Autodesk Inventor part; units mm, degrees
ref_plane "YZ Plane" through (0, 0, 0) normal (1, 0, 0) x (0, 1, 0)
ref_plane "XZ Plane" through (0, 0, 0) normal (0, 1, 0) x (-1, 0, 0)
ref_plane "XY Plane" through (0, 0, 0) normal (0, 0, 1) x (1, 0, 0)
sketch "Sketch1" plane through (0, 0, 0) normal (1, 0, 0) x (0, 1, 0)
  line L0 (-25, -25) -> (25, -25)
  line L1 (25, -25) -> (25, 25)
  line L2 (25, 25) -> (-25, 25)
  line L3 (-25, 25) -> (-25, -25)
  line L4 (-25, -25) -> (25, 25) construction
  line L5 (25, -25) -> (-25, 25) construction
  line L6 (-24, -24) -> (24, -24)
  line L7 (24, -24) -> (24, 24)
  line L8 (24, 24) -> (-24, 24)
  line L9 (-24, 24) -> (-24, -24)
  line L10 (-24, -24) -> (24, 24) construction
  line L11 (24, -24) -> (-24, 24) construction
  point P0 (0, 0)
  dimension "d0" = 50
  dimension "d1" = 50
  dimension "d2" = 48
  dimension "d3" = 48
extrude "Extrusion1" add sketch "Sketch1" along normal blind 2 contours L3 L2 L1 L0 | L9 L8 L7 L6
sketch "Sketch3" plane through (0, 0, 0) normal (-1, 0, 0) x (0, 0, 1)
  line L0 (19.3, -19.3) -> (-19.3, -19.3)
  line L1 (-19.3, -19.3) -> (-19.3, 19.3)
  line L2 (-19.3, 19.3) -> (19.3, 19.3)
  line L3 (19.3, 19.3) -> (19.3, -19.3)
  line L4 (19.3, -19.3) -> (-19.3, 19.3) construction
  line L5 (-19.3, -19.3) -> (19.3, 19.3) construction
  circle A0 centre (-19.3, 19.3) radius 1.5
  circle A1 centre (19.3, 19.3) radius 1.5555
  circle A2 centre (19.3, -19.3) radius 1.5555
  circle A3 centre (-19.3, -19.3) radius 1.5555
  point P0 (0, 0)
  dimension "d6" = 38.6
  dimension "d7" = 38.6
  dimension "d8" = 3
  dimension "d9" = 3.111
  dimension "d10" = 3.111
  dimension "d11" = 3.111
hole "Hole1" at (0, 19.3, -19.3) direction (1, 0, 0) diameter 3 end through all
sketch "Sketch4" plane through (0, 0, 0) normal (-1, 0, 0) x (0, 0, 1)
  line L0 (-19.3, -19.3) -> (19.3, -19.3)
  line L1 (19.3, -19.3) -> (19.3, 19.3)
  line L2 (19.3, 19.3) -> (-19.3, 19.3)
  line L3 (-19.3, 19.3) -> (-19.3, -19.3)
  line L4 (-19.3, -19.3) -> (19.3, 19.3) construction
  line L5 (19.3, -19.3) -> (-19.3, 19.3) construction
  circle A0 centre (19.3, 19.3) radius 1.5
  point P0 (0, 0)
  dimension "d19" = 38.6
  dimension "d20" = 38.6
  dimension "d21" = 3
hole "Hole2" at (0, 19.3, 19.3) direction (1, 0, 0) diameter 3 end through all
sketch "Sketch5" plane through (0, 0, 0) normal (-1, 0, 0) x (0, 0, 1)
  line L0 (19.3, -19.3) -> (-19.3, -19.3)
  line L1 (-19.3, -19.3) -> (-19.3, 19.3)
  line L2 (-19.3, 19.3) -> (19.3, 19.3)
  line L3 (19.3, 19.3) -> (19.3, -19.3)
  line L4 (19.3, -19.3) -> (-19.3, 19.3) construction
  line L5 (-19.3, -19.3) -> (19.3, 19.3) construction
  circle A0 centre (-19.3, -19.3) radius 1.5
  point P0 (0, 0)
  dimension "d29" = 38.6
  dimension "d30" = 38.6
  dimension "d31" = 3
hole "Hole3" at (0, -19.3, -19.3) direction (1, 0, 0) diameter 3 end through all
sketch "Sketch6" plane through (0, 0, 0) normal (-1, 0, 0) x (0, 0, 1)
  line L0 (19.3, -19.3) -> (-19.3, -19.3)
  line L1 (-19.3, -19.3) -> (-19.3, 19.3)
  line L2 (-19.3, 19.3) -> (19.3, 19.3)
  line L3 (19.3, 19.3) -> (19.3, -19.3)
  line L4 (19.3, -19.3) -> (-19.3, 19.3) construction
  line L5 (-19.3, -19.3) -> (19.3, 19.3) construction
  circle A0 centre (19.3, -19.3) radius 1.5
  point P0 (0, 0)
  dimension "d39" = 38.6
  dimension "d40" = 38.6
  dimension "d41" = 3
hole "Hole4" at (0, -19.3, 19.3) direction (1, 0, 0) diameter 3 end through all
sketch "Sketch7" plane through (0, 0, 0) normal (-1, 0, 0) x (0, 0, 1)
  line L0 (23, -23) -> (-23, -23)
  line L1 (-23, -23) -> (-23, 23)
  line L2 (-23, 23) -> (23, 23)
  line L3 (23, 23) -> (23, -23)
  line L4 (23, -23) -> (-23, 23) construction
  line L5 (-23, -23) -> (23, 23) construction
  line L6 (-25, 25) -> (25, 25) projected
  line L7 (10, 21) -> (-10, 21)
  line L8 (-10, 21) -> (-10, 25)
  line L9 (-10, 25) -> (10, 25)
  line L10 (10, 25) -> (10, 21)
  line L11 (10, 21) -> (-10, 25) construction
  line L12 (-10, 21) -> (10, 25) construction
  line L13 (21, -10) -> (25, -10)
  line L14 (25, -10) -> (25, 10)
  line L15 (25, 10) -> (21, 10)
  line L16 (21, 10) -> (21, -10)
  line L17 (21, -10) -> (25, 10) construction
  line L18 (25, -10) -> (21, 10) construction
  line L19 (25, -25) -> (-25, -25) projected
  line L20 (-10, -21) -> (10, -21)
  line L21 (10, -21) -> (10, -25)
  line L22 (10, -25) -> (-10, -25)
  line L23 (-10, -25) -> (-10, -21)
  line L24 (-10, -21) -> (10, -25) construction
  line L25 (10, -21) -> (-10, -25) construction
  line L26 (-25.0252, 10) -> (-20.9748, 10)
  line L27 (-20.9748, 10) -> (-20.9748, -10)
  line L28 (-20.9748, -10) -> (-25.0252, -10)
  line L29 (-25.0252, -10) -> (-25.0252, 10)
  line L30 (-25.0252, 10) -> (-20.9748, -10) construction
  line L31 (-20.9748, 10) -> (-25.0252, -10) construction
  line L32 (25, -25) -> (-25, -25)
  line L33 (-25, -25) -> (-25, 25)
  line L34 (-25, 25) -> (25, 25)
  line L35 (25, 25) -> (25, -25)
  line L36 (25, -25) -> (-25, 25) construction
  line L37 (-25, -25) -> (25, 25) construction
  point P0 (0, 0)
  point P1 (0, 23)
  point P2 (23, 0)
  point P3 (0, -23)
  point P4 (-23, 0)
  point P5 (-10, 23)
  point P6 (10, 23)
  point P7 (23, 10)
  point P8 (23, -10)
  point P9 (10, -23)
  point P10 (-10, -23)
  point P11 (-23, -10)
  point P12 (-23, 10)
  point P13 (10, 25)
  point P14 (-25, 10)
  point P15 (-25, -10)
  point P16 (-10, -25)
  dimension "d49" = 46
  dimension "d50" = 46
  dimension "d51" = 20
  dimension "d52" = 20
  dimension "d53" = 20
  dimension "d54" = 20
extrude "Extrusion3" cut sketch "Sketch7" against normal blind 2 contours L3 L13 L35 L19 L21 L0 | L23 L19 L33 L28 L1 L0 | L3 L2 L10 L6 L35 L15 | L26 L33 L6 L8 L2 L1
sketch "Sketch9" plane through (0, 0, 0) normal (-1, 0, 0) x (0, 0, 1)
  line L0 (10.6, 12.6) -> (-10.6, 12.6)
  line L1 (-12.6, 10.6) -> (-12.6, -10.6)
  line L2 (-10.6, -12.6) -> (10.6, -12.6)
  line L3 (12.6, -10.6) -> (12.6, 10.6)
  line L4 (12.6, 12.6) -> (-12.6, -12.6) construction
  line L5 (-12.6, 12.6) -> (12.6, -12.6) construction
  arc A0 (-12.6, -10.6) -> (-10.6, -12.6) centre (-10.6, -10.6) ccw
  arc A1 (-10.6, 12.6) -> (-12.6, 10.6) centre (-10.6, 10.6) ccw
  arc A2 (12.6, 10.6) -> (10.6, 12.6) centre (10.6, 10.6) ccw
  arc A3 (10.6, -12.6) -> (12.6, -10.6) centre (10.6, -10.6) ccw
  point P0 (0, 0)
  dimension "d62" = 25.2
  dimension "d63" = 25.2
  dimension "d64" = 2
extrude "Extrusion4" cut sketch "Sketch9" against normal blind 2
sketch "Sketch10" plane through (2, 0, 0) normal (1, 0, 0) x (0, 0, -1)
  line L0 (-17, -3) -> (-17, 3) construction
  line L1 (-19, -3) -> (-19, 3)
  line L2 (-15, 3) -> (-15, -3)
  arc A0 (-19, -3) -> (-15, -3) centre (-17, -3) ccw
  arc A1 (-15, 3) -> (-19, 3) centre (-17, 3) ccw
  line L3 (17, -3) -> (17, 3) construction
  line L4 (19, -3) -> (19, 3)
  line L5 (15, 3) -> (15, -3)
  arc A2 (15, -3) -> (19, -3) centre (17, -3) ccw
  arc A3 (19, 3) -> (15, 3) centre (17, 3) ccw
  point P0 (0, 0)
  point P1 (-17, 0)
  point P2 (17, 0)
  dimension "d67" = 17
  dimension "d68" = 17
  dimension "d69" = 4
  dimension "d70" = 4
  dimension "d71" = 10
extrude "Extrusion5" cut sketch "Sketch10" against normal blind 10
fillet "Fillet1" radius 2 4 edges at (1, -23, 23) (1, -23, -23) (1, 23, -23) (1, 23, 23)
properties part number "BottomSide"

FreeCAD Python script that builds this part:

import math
import FreeCAD as App
import Part
import Sketcher
from FreeCAD import Vector


def edges_at(feature, points):
    """Names of the edges that pass closest to the given points."""
    edges = feature.Shape.Edges
    near = lambda p: min(range(len(edges)), key=lambda i: edges[i].distToShape(Part.Vertex(*p))[0])
    return sorted({f"Edge{near(p) + 1}" for p in points})


def add_polygon(sketch, points):
    """Adds a closed chain of lines whose ends are joined by coincident constraints."""
    first, n = sketch.GeometryCount, len(points)
    for a, b in zip(points, points[1:] + points[:1]):
        sketch.addGeometry(Part.LineSegment(App.Vector(*a, 0), App.Vector(*b, 0)), False)
    for i in range(n):
        sketch.addConstraint(Sketcher.Constraint("Coincident", first + i, 2, first + (i + 1) % n, 1))

doc = App.newDocument("Part")
body = doc.addObject("PartDesign::Body", "Body")

# Sketch on YZ plane
sketch1 = doc.addObject("Sketcher::SketchObject", "Sketch")
body.addObject(sketch1)
sketch1.AttachmentSupport = (doc.YZ_Plane, [""])
sketch1.MapMode = "FlatFace"
add_polygon(sketch1, [(-25, 25), (-25, -25), (25, -25), (25, 25)])  # lines 0-3
sketch1.addConstraint(Sketcher.Constraint("Vertical", 0))
sketch1.addConstraint(Sketcher.Constraint("Horizontal", 1))
sketch1.addConstraint(Sketcher.Constraint("Vertical", 2))
sketch1.addConstraint(Sketcher.Constraint("Horizontal", 3))
sketch1.addConstraint(Sketcher.Constraint("Symmetric", 0, 2, 2, 2, -1, 1))
sketch1.addConstraint(Sketcher.Constraint("Equal", 3, 0))
sketch1.addConstraint(Sketcher.Constraint("DistanceX", 1, 1, 1, 2, 50.0))
pad1 = doc.addObject("PartDesign::Pad", "Pad")
body.addObject(pad1)
pad1.Profile = sketch1
pad1.Length = 2

# Sketch on YZ plane
sketch2 = doc.addObject("Sketcher::SketchObject", "Sketch001")
body.addObject(sketch2)
sketch2.AttachmentSupport = (doc.YZ_Plane, [""])
sketch2.MapMode = "FlatFace"
sketch2.addGeometry(Part.Circle(Vector(19.3, -19.3, 0), Vector(0, 0, 1), 1.5), False)
sketch2.addConstraint(Sketcher.Constraint("Diameter", 0, 3.0))
sketch2.addConstraint(Sketcher.Constraint("DistanceX", -1, 1, 0, 3, 19.3))
sketch2.addConstraint(Sketcher.Constraint("DistanceY", 0, 3, -1, 1, 19.3))
doc.recompute()
hole = doc.addObject("PartDesign::Hole", "Hole")
body.addObject(hole)
hole.Profile = sketch2
hole.ThreadType = "None"
hole.Diameter = 3
hole.DepthType = "ThroughAll"
hole.Reversed = True

# Sketch on YZ plane
sketch3 = doc.addObject("Sketcher::SketchObject", "Sketch002")
body.addObject(sketch3)
sketch3.AttachmentSupport = (doc.YZ_Plane, [""])
sketch3.MapMode = "FlatFace"
sketch3.addGeometry(Part.Circle(Vector(19.3, 19.3, 0), Vector(0, 0, 1), 1.5), False)
sketch3.addConstraint(Sketcher.Constraint("Diameter", 0, 3.0))
sketch3.addConstraint(Sketcher.Constraint("DistanceX", -1, 1, 0, 3, 19.3))
sketch3.addConstraint(Sketcher.Constraint("DistanceY", -1, 1, 0, 3, 19.3))
doc.recompute()
hole2 = doc.addObject("PartDesign::Hole", "Hole001")
body.addObject(hole2)
hole2.Profile = sketch3
hole2.ThreadType = "None"
hole2.Diameter = 3
hole2.DepthType = "ThroughAll"
hole2.Reversed = True

# Sketch on YZ plane
sketch4 = doc.addObject("Sketcher::SketchObject", "Sketch003")
body.addObject(sketch4)
sketch4.AttachmentSupport = (doc.YZ_Plane, [""])
sketch4.MapMode = "FlatFace"
sketch4.addGeometry(Part.Circle(Vector(-19.3, -19.3, 0), Vector(0, 0, 1), 1.5), False)
sketch4.addConstraint(Sketcher.Constraint("Diameter", 0, 3.0))
sketch4.addConstraint(Sketcher.Constraint("DistanceX", 0, 3, -1, 1, 19.3))
sketch4.addConstraint(Sketcher.Constraint("DistanceY", 0, 3, -1, 1, 19.3))
doc.recompute()
hole3 = doc.addObject("PartDesign::Hole", "Hole002")
body.addObject(hole3)
hole3.Profile = sketch4
hole3.ThreadType = "None"
hole3.Diameter = 3
hole3.DepthType = "ThroughAll"
hole3.Reversed = True

# Sketch on YZ plane
sketch5 = doc.addObject("Sketcher::SketchObject", "Sketch004")
body.addObject(sketch5)
sketch5.AttachmentSupport = (doc.YZ_Plane, [""])
sketch5.MapMode = "FlatFace"
sketch5.addGeometry(Part.Circle(Vector(-19.3, 19.3, 0), Vector(0, 0, 1), 1.5), False)
sketch5.addConstraint(Sketcher.Constraint("Diameter", 0, 3.0))
sketch5.addConstraint(Sketcher.Constraint("DistanceX", 0, 3, -1, 1, 19.3))
sketch5.addConstraint(Sketcher.Constraint("DistanceY", -1, 1, 0, 3, 19.3))
doc.recompute()
hole4 = doc.addObject("PartDesign::Hole", "Hole003")
body.addObject(hole4)
hole4.Profile = sketch5
hole4.ThreadType = "None"
hole4.Diameter = 3
hole4.DepthType = "ThroughAll"
hole4.Reversed = True

# Sketch on YZ plane
sketch6 = doc.addObject("Sketcher::SketchObject", "Sketch005")
body.addObject(sketch6)
sketch6.AttachmentSupport = (doc.YZ_Plane, [""])
sketch6.MapMode = "FlatFace"
add_polygon(sketch6, [(-10, 23), (-23, 23), (-23, 10), (-25, 10), (-25, 25), (-10, 25)])  # lines 0-5
add_polygon(sketch6, [(-25, -10), (-23, -10), (-23, -23), (-10, -23), (-10, -25), (-25, -25)])  # lines 6-11
add_polygon(sketch6, [(23, 23), (10, 23), (10, 25), (25, 25), (25, 10), (23, 10)])  # lines 12-17
add_polygon(sketch6, [(10, -25), (10, -23), (23, -23), (23, -10), (25, -10), (25, -25)])  # lines 18-23
sketch6.addConstraint(Sketcher.Constraint("Horizontal", 0))
sketch6.addConstraint(Sketcher.Constraint("Vertical", 1))
sketch6.addConstraint(Sketcher.Constraint("Horizontal", 2))
sketch6.addConstraint(Sketcher.Constraint("Vertical", 3))
sketch6.addConstraint(Sketcher.Constraint("Horizontal", 4))
sketch6.addConstraint(Sketcher.Constraint("Vertical", 5))
sketch6.addConstraint(Sketcher.Constraint("Horizontal", 6))
sketch6.addConstraint(Sketcher.Constraint("Vertical", 7))
sketch6.addConstraint(Sketcher.Constraint("Horizontal", 8))
sketch6.addConstraint(Sketcher.Constraint("Vertical", 9))
sketch6.addConstraint(Sketcher.Constraint("Horizontal", 10))
sketch6.addConstraint(Sketcher.Constraint("Vertical", 11))
sketch6.addConstraint(Sketcher.Constraint("Horizontal", 12))
sketch6.addConstraint(Sketcher.Constraint("Vertical", 13))
sketch6.addConstraint(Sketcher.Constraint("Horizontal", 14))
sketch6.addConstraint(Sketcher.Constraint("Vertical", 15))
sketch6.addConstraint(Sketcher.Constraint("Horizontal", 16))
sketch6.addConstraint(Sketcher.Constraint("Vertical", 17))
sketch6.addConstraint(Sketcher.Constraint("Vertical", 18))
sketch6.addConstraint(Sketcher.Constraint("Horizontal", 19))
sketch6.addConstraint(Sketcher.Constraint("Vertical", 20))
sketch6.addConstraint(Sketcher.Constraint("Horizontal", 21))
sketch6.addConstraint(Sketcher.Constraint("Vertical", 22))
sketch6.addConstraint(Sketcher.Constraint("Horizontal", 23))
sketch6.addConstraint(Sketcher.Constraint("Symmetric", 8, 2, 12, 2, -1, 1))
sketch6.addConstraint(Sketcher.Constraint("Symmetric", 10, 2, 14, 2, -1, 1))
sketch6.addConstraint(Sketcher.Constraint("Symmetric", 6, 2, 16, 2, -1, 1))
sketch6.addConstraint(Sketcher.Constraint("Symmetric", 5, 2, 18, 2, -1, 1))
sketch6.addConstraint(Sketcher.Constraint("Symmetric", 1, 2, 20, 2, -1, 1))
sketch6.addConstraint(Sketcher.Constraint("Symmetric", 3, 2, 22, 2, -1, 1))
sketch6.addConstraint(Sketcher.Constraint("Symmetric", 5, 2, 12, 2, -2))
sketch6.addConstraint(Sketcher.Constraint("Symmetric", 3, 2, 14, 2, -2))
sketch6.addConstraint(Sketcher.Constraint("Symmetric", 1, 2, 16, 2, -2))
sketch6.addConstraint(Sketcher.Constraint("Equal", 19, 1))
sketch6.addConstraint(Sketcher.Constraint("Equal", 23, 3))
sketch6.addConstraint(Sketcher.Constraint("DistanceY", 6, 2, 1, 2, 20.0))
sketch6.addConstraint(Sketcher.Constraint("DistanceY", 7, 2, 0, 2, 46.0))
sketch6.addConstraint(Sketcher.Constraint("DistanceX", 5, 2, 12, 2, 20.0))
sketch6.addConstraint(Sketcher.Constraint("DistanceX", 2, 2, 2, 1, 2.0))
pocket1 = doc.addObject("PartDesign::Pocket", "Pocket")
body.addObject(pocket1)
pocket1.Profile = sketch6
pocket1.Length = 2
pocket1.Reversed = True

# Sketch on YZ plane
sketch7 = doc.addObject("Sketcher::SketchObject", "Sketch006")
body.addObject(sketch7)
sketch7.AttachmentSupport = (doc.YZ_Plane, [""])
sketch7.MapMode = "FlatFace"
sketch7.addGeometry(Part.ArcOfCircle(Part.Circle(Vector(10.6, 10.6, 0), Vector(0, 0, 1), 2), math.radians(0), math.radians(90)), False)
sketch7.addGeometry(Part.LineSegment(Vector(12.6, 10.6, 0), Vector(12.6, -10.6, 0)), False)
sketch7.addGeometry(Part.ArcOfCircle(Part.Circle(Vector(10.6, -10.6, 0), Vector(0, 0, 1), 2), math.radians(-90), math.radians(0)), False)
sketch7.addGeometry(Part.LineSegment(Vector(10.6, -12.6, 0), Vector(-10.6, -12.6, 0)), False)
sketch7.addGeometry(Part.ArcOfCircle(Part.Circle(Vector(-10.6, -10.6, 0), Vector(0, 0, 1), 2), math.radians(180), math.radians(270)), False)
sketch7.addGeometry(Part.LineSegment(Vector(-12.6, -10.6, 0), Vector(-12.6, 10.6, 0)), False)
sketch7.addGeometry(Part.ArcOfCircle(Part.Circle(Vector(-10.6, 10.6, 0), Vector(0, 0, 1), 2), math.radians(90), math.radians(180)), False)
sketch7.addGeometry(Part.LineSegment(Vector(-10.6, 12.6, 0), Vector(10.6, 12.6, 0)), False)
sketch7.addConstraint(Sketcher.Constraint("Tangent", 0, 1, 1, 1))
sketch7.addConstraint(Sketcher.Constraint("Tangent", 1, 2, 2, 2))
sketch7.addConstraint(Sketcher.Constraint("Tangent", 2, 1, 3, 1))
sketch7.addConstraint(Sketcher.Constraint("Tangent", 3, 2, 4, 2))
sketch7.addConstraint(Sketcher.Constraint("Tangent", 4, 1, 5, 1))
sketch7.addConstraint(Sketcher.Constraint("Tangent", 5, 2, 6, 2))
sketch7.addConstraint(Sketcher.Constraint("Tangent", 6, 1, 7, 1))
sketch7.addConstraint(Sketcher.Constraint("Tangent", 7, 2, 0, 2))
sketch7.addConstraint(Sketcher.Constraint("Vertical", 1))
sketch7.addConstraint(Sketcher.Constraint("Horizontal", 3))
sketch7.addConstraint(Sketcher.Constraint("Vertical", 5))
sketch7.addConstraint(Sketcher.Constraint("Horizontal", 7))
sketch7.addConstraint(Sketcher.Constraint("Equal", 0, 2))
sketch7.addConstraint(Sketcher.Constraint("Equal", 2, 4))
sketch7.addConstraint(Sketcher.Constraint("Equal", 4, 6))
sketch7.addConstraint(Sketcher.Constraint("Symmetric", 0, 3, 4, 3, -1, 1))
sketch7.addConstraint(Sketcher.Constraint("Equal", 7, 1))
sketch7.addConstraint(Sketcher.Constraint("Radius", 0, 2.0))
sketch7.addConstraint(Sketcher.Constraint("DistanceX", 3, 2, 3, 1, 21.2))
pocket2 = doc.addObject("PartDesign::Pocket", "Pocket001")
body.addObject(pocket2)
pocket2.Profile = sketch7
pocket2.Length = 2
pocket2.Reversed = True

# Sketch on YZ plane
sketch8 = doc.addObject("Sketcher::SketchObject", "Sketch007")
body.addObject(sketch8)
sketch8.AttachmentSupport = (doc.YZ_Plane, [""])
sketch8.MapMode = "FlatFace"
sketch8.AttachmentOffset = App.Placement(Vector(0, 0, 2), App.Rotation())
sketch8.addGeometry(Part.LineSegment(Vector(3, 19, 0), Vector(-3, 19, 0)), False)
sketch8.addGeometry(Part.ArcOfCircle(Part.Circle(Vector(-3, 17, 0), Vector(0, 0, 1), 2), math.radians(90), math.radians(270)), False)
sketch8.addGeometry(Part.LineSegment(Vector(-3, 15, 0), Vector(3, 15, 0)), False)
sketch8.addGeometry(Part.ArcOfCircle(Part.Circle(Vector(3, 17, 0), Vector(0, 0, 1), 2), math.radians(-90), math.radians(90)), False)
sketch8.addGeometry(Part.ArcOfCircle(Part.Circle(Vector(-3, -17, 0), Vector(0, 0, 1), 2), math.radians(90), math.radians(270)), False)
sketch8.addGeometry(Part.LineSegment(Vector(-3, -19, 0), Vector(3, -19, 0)), False)
sketch8.addGeometry(Part.ArcOfCircle(Part.Circle(Vector(3, -17, 0), Vector(0, 0, 1), 2), math.radians(-90), math.radians(90)), False)
sketch8.addGeometry(Part.LineSegment(Vector(3, -15, 0), Vector(-3, -15, 0)), False)
sketch8.addConstraint(Sketcher.Constraint("Tangent", 0, 2, 1, 1))
sketch8.addConstraint(Sketcher.Constraint("Tangent", 1, 2, 2, 1))
sketch8.addConstraint(Sketcher.Constraint("Tangent", 2, 2, 3, 1))
sketch8.addConstraint(Sketcher.Constraint("Tangent", 3, 2, 0, 1))
sketch8.addConstraint(Sketcher.Constraint("Tangent", 4, 2, 5, 1))
sketch8.addConstraint(Sketcher.Constraint("Tangent", 5, 2, 6, 1))
sketch8.addConstraint(Sketcher.Constraint("Tangent", 6, 2, 7, 1))
sketch8.addConstraint(Sketcher.Constraint("Tangent", 7, 2, 4, 1))
sketch8.addConstraint(Sketcher.Constraint("Horizontal", 0))
sketch8.addConstraint(Sketcher.Constraint("Horizontal", 2))
sketch8.addConstraint(Sketcher.Constraint("Horizontal", 5))
sketch8.addConstraint(Sketcher.Constraint("Horizontal", 7))
sketch8.addConstraint(Sketcher.Constraint("Equal", 3, 4))
sketch8.addConstraint(Sketcher.Constraint("Symmetric", 3, 3, 4, 3, -1, 1))
sketch8.addConstraint(Sketcher.Constraint("Vertical", 1, 3, 4, 3))
sketch8.addConstraint(Sketcher.Constraint("Vertical", 3, 3, 6, 3))
sketch8.addConstraint(Sketcher.Constraint("Radius", 1, 2.0))
sketch8.addConstraint(Sketcher.Constraint("DistanceY", -1, 1, 1, 3, 17.0))
sketch8.addConstraint(Sketcher.Constraint("DistanceX", 0, 2, 0, 1, 6.0))
pocket3 = doc.addObject("PartDesign::Pocket", "Pocket002")
body.addObject(pocket3)
pocket3.Profile = sketch8
pocket3.Length = 10
doc.recompute()

fillet = doc.addObject("PartDesign::Fillet", "Fillet")
body.addObject(fillet)
fillet.Base = (pocket3, edges_at(pocket3, [
    (1, -23, 23),
    (1, -23, -23),
    (1, 23, -23),
    (1, 23, 23),
]))
fillet.Radius = 2

doc.recompute()
